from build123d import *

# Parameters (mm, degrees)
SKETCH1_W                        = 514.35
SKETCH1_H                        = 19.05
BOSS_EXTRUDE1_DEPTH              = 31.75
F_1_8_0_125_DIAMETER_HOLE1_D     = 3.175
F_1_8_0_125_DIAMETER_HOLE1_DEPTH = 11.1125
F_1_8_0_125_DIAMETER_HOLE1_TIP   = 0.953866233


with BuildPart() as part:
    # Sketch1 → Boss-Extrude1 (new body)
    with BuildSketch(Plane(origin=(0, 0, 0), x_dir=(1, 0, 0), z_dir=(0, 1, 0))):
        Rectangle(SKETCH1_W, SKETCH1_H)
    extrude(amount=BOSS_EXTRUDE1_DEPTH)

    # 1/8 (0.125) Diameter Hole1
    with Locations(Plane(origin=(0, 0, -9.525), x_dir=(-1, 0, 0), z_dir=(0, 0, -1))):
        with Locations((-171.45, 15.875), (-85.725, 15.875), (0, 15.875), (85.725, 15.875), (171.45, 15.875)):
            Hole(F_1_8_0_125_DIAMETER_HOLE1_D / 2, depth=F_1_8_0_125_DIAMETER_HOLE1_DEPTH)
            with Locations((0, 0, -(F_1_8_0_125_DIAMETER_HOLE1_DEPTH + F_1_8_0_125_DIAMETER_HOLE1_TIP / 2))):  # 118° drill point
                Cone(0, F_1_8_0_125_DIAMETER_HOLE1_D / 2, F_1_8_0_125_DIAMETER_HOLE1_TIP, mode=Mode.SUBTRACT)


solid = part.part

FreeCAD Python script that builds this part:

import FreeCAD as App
import Part
import Sketcher
Q = App.Units.Quantity


def add_polygon(sketch, points):
    """Adds a closed chain of lines whose ends are joined by coincident constraints."""
    first, n = sketch.GeometryCount, len(points)
    for a, b in zip(points, points[1:] + points[:1]):
        sketch.addGeometry(Part.LineSegment(App.Vector(*a, 0), App.Vector(*b, 0)), False)
    for i in range(n):
        sketch.addConstraint(Sketcher.Constraint("Coincident", first + i, 2, first + (i + 1) % n, 1))

doc = App.newDocument("Part")
params = doc.addObject("Spreadsheet::Sheet", "Params")
for row, (alias, value) in enumerate([
    ("sketch1_width", "20.25 in"),
    ("sketch1_height", "0.75 in"),
    ("pad1_length", "1.25 in"),
    ("sketch2_diameter", "0.125 in"),
    ("hole_diameter", "0.125 in"),
    ("hole_depth", "0.4375 in"),
], start=1):
    params.set(f"A{row}", alias)
    params.set(f"B{row}", "=" + value)
    params.setAlias(f"B{row}", alias)

body = doc.addObject("PartDesign::Body", "Body")

sketch1 = body.newObject("Sketcher::SketchObject", "Sketch")
sketch1.AttachmentSupport = (doc.getObject("XZ_Plane"), [""])
sketch1.MapMode = "FlatFace"
add_polygon(sketch1, [(-257, -10), (-257, 10), (257, 10), (257, -10)])
sketch1.addConstraint(Sketcher.Constraint("Vertical", 0))
sketch1.addConstraint(Sketcher.Constraint("Horizontal", 1))
sketch1.addConstraint(Sketcher.Constraint("Vertical", 2))
sketch1.addConstraint(Sketcher.Constraint("Horizontal", 3))
sketch1.addConstraint(Sketcher.Constraint("Symmetric", 0, 2, 2, 2, -1, 1))
sketch1.addConstraint(Sketcher.Constraint("DistanceX", 1, 1, 1, 2, Q("20.25 in")))
sketch1.addConstraint(Sketcher.Constraint("DistanceY", 0, 1, 0, 2, Q("0.75 in")))
sketch1.setExpression("Constraints[9]", "Params.sketch1_width")
sketch1.setExpression("Constraints[10]", "Params.sketch1_height")
pad1 = body.newObject("PartDesign::Pad", "Pad")
pad1.Profile = sketch1
pad1.setExpression("Length", "Params.pad1_length")
pad1.Reversed = True

sketch2 = body.newObject("Sketcher::SketchObject", "Sketch001")
sketch2.AttachmentSupport = (doc.getObject("XY_Plane"), [""])
sketch2.MapMode = "FlatFace"
sketch2.AttachmentOffset = App.Placement(App.Vector(0, 0, -0.375 * 25.4), App.Rotation())
sketch2.addGeometry(Part.Circle(App.Vector(171.4, 15.9, 0), App.Vector(0, 0, 1), 1.6), False)
sketch2.addGeometry(Part.Circle(App.Vector(85.7, 15.9, 0), App.Vector(0, 0, 1), 1.6), False)
sketch2.addGeometry(Part.Circle(App.Vector(0, 15.9, 0), App.Vector(0, 0, 1), 1.6), False)
sketch2.addGeometry(Part.Circle(App.Vector(-85.7, 15.9, 0), App.Vector(0, 0, 1), 1.6), False)
sketch2.addGeometry(Part.Circle(App.Vector(-171.4, 15.9, 0), App.Vector(0, 0, 1), 1.6), False)
sketch2.addConstraint(Sketcher.Constraint("Equal", 0, 1))
sketch2.addConstraint(Sketcher.Constraint("Equal", 1, 2))
sketch2.addConstraint(Sketcher.Constraint("Equal", 2, 3))
sketch2.addConstraint(Sketcher.Constraint("Equal", 3, 4))
sketch2.addConstraint(Sketcher.Constraint("Symmetric", 1, 3, 3, 3, -2))
sketch2.addConstraint(Sketcher.Constraint("Symmetric", 0, 3, 4, 3, -2))
sketch2.addConstraint(Sketcher.Constraint("PointOnObject", 2, 3, -2))
sketch2.addConstraint(Sketcher.Constraint("Horizontal", 0, 3, 1, 3))
sketch2.addConstraint(Sketcher.Constraint("Horizontal", 1, 3, 2, 3))
sketch2.addConstraint(Sketcher.Constraint("Diameter", 0, Q("0.125 in")))
sketch2.addConstraint(Sketcher.Constraint("DistanceX", 4, 3, 0, 3, Q("13.5 in")))
sketch2.addConstraint(Sketcher.Constraint("DistanceX", 3, 3, 1, 3, Q("6.75 in")))
sketch2.addConstraint(Sketcher.Constraint("DistanceY", -1, 1, 0, 3, Q("0.625 in")))
sketch2.setExpression("Constraints[9]", "Params.sketch2_diameter")
doc.recompute()
hole = body.newObject("PartDesign::Hole", "Hole")
hole.Profile = sketch2
hole.ThreadType = "None"
hole.setExpression("Diameter", "Params.hole_diameter")
hole.DepthType = "Dimension"
hole.setExpression("Depth", "Params.hole_depth")
hole.DrillPoint = "Angled"
hole.DrillPointAngle = 118
hole.Reversed = True

doc.recompute()
